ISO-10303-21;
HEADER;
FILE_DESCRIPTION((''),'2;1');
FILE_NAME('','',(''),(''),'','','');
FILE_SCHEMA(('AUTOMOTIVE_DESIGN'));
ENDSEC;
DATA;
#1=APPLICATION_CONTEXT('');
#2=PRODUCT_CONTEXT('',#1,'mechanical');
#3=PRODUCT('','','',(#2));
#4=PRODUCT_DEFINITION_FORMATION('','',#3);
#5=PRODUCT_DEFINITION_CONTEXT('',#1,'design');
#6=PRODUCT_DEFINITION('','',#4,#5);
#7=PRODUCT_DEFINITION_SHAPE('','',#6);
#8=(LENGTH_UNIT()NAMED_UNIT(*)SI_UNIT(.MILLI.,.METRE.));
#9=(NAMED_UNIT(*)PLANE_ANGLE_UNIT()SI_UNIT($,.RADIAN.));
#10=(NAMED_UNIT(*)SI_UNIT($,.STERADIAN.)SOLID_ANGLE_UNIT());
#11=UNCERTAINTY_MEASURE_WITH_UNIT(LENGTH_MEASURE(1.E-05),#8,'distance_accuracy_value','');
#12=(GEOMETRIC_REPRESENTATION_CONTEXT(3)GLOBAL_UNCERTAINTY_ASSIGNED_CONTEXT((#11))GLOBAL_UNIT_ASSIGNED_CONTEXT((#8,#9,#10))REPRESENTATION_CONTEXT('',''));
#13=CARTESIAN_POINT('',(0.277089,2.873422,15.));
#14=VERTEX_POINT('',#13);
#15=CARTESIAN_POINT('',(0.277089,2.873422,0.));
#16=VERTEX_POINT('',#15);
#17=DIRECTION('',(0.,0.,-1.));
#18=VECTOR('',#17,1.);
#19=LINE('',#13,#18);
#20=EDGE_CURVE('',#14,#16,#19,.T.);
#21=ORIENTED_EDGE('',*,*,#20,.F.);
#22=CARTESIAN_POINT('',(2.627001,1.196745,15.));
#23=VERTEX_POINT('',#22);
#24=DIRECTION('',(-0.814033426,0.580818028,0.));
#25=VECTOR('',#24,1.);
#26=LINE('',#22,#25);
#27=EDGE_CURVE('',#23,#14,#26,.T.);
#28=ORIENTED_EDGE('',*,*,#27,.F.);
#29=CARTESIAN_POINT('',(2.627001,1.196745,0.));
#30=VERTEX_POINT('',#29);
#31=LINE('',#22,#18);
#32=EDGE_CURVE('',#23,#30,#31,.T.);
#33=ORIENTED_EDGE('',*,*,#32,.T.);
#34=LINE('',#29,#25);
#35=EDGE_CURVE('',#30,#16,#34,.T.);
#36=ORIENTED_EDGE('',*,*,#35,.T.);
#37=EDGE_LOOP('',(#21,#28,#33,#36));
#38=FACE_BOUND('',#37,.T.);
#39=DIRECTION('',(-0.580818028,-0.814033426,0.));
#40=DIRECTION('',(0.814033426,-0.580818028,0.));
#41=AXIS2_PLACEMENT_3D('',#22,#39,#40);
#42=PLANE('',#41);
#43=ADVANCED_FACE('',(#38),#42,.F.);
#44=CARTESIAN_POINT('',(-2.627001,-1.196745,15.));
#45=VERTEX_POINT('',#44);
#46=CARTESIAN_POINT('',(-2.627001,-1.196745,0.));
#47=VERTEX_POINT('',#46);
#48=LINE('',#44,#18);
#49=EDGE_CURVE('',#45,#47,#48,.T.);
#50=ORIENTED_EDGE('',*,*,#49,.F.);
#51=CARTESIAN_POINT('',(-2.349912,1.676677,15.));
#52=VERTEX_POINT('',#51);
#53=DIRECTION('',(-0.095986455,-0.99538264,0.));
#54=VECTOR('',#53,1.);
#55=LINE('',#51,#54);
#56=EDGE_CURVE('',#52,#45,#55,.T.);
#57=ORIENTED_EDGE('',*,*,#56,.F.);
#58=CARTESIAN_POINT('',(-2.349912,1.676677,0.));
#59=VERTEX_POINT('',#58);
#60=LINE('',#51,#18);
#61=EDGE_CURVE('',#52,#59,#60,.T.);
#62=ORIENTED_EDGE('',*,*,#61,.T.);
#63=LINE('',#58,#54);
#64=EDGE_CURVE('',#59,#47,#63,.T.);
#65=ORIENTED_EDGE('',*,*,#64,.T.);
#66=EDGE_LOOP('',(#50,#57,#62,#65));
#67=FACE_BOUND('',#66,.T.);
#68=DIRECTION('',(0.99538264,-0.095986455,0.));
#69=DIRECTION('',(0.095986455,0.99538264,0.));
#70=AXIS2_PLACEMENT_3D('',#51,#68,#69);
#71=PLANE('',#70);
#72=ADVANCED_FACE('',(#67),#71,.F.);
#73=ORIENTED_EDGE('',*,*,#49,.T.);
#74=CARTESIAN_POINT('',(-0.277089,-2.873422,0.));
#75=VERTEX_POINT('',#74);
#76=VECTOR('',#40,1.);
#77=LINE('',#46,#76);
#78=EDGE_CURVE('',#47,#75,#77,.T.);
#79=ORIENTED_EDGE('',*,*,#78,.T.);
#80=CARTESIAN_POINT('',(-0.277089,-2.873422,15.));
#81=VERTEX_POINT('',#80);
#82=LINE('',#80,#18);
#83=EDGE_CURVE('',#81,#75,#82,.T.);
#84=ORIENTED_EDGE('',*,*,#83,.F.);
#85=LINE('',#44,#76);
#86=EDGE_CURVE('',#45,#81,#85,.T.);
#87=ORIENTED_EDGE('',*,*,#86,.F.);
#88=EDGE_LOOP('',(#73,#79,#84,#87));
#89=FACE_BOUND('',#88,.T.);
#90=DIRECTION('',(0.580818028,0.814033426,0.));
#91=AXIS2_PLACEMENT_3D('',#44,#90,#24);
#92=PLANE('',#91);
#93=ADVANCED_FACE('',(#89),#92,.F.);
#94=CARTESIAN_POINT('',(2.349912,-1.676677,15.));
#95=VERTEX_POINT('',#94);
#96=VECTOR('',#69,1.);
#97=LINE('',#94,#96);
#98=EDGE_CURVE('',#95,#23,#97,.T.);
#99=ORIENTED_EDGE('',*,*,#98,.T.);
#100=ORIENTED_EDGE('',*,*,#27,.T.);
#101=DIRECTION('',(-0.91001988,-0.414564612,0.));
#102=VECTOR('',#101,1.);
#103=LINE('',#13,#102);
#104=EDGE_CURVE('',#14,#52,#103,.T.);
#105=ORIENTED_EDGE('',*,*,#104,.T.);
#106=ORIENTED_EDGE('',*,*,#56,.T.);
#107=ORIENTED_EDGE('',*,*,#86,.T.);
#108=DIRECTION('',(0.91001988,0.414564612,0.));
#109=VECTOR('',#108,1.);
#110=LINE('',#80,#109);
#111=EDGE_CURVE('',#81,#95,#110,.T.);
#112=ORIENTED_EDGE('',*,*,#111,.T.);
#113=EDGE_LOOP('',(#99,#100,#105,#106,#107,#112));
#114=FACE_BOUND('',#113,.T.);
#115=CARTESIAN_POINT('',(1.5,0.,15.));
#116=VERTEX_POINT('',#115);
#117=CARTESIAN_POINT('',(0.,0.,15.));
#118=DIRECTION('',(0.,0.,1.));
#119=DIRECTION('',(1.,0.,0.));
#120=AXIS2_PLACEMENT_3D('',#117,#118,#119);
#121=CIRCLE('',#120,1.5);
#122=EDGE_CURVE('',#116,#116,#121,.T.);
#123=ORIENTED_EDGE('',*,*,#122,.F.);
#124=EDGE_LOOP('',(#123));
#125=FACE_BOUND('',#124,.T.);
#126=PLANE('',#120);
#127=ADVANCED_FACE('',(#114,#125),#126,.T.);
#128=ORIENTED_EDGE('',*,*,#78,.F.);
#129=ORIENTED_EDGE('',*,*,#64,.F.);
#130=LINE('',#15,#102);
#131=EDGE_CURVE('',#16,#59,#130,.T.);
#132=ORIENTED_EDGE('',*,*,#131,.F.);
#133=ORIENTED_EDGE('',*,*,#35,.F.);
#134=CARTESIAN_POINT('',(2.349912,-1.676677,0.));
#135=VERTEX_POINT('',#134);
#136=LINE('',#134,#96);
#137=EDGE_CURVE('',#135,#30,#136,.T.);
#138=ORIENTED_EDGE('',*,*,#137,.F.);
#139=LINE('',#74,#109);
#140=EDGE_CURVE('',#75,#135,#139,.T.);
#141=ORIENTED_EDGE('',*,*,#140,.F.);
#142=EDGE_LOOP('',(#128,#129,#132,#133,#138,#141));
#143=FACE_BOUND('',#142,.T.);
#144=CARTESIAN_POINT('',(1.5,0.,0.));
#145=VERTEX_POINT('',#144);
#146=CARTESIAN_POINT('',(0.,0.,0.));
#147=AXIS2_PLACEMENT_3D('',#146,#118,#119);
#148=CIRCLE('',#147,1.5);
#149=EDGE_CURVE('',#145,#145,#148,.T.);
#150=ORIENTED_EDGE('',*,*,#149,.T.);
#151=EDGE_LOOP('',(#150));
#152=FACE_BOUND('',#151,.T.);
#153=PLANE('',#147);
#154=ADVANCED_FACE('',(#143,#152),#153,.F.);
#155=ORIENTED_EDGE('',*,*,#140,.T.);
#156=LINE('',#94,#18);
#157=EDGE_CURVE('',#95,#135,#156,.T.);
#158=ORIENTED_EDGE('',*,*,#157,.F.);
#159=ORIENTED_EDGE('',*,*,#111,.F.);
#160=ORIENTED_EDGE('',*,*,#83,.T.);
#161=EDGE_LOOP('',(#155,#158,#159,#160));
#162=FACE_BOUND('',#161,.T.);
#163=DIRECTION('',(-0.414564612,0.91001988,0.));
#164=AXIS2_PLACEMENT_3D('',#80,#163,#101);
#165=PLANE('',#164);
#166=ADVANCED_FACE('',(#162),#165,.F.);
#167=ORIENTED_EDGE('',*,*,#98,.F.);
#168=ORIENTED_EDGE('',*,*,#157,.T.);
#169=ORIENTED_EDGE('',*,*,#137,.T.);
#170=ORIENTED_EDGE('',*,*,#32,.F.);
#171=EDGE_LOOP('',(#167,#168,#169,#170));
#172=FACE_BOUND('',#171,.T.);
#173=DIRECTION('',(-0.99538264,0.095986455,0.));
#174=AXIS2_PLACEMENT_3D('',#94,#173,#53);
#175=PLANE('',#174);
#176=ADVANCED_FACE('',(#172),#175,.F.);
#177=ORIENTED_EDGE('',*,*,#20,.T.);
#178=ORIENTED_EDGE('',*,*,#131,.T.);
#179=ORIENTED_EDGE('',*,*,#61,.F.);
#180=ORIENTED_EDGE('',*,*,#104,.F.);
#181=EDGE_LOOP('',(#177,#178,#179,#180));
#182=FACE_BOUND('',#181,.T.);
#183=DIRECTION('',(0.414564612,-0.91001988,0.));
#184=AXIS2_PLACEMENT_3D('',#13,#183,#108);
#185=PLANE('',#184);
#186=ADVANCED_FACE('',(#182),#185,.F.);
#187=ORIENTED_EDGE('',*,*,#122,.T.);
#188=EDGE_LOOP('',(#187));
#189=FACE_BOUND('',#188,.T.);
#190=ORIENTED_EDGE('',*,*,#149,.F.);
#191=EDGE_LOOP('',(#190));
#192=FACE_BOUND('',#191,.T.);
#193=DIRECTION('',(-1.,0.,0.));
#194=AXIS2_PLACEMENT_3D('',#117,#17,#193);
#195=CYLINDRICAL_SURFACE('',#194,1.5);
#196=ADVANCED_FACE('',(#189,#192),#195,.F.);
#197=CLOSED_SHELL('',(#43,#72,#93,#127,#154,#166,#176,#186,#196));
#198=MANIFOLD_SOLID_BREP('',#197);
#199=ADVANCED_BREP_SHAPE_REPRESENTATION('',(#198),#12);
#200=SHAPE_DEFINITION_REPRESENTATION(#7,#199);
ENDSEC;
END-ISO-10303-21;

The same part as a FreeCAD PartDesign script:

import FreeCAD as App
import Part
import Sketcher

V = App.Vector
Q = App.Units.Quantity


def add_polygon(sketch, points):
    """Adds a closed chain of lines whose ends are joined by coincident constraints."""
    first, n = sketch.GeometryCount, len(points)
    for a, b in zip(points, points[1:] + points[:1]):
        sketch.addGeometry(Part.LineSegment(App.Vector(*a, 0), App.Vector(*b, 0)), False)
    for i in range(n):
        sketch.addConstraint(Sketcher.Constraint("Coincident", first + i, 2, first + (i + 1) % n, 1))

doc = App.newDocument("Part")
body = doc.addObject("PartDesign::Body", "Body")

sketch1 = doc.addObject("Sketcher::SketchObject", "Sketch")
body.addObject(sketch1)
sketch1.AttachmentSupport = (doc.XY_Plane, [""])
sketch1.MapMode = "FlatFace"
add_polygon(sketch1, [(2.627001, 1.196745), (0.277089, 2.873422), (-2.349912, 1.676677), (-2.627001, -1.196745), (-0.277089, -2.873422), (2.349912, -1.676677)])
sketch1.addGeometry(Part.Circle(V(0, 0, 0), V(0, 0, 1), 1.5), False)
sketch1.addConstraint([
    Sketcher.Constraint("Coincident", 6, 3, -1, 1),
    Sketcher.Constraint("Symmetric", 0, 2, 3, 2, -1, 1),
    Sketcher.Constraint("Symmetric", 1, 2, 4, 2, -1, 1),
    Sketcher.Constraint("Symmetric", 2, 2, 5, 2, -1, 1),
    Sketcher.Constraint("Equal", 0, 1),
    Sketcher.Constraint("Equal", 1, 2),
    Sketcher.Constraint("Diameter", 6, Q("3 mm")),
    Sketcher.Constraint("DistanceX", 2, 2, -1, 1, Q("2.627001 mm")),
    Sketcher.Constraint("DistanceX", 1, 2, 0, 2, Q("2.627001 mm")),
    Sketcher.Constraint("DistanceY", 3, 2, 1, 2, Q("4.550099 mm")),
    Sketcher.Constraint("Distance", 0, Q("2.886751 mm")),
])
pad1 = doc.addObject("PartDesign::Pad", "Pad")
body.addObject(pad1)
pad1.Profile = sketch1
pad1.Length = 15

doc.recompute()
